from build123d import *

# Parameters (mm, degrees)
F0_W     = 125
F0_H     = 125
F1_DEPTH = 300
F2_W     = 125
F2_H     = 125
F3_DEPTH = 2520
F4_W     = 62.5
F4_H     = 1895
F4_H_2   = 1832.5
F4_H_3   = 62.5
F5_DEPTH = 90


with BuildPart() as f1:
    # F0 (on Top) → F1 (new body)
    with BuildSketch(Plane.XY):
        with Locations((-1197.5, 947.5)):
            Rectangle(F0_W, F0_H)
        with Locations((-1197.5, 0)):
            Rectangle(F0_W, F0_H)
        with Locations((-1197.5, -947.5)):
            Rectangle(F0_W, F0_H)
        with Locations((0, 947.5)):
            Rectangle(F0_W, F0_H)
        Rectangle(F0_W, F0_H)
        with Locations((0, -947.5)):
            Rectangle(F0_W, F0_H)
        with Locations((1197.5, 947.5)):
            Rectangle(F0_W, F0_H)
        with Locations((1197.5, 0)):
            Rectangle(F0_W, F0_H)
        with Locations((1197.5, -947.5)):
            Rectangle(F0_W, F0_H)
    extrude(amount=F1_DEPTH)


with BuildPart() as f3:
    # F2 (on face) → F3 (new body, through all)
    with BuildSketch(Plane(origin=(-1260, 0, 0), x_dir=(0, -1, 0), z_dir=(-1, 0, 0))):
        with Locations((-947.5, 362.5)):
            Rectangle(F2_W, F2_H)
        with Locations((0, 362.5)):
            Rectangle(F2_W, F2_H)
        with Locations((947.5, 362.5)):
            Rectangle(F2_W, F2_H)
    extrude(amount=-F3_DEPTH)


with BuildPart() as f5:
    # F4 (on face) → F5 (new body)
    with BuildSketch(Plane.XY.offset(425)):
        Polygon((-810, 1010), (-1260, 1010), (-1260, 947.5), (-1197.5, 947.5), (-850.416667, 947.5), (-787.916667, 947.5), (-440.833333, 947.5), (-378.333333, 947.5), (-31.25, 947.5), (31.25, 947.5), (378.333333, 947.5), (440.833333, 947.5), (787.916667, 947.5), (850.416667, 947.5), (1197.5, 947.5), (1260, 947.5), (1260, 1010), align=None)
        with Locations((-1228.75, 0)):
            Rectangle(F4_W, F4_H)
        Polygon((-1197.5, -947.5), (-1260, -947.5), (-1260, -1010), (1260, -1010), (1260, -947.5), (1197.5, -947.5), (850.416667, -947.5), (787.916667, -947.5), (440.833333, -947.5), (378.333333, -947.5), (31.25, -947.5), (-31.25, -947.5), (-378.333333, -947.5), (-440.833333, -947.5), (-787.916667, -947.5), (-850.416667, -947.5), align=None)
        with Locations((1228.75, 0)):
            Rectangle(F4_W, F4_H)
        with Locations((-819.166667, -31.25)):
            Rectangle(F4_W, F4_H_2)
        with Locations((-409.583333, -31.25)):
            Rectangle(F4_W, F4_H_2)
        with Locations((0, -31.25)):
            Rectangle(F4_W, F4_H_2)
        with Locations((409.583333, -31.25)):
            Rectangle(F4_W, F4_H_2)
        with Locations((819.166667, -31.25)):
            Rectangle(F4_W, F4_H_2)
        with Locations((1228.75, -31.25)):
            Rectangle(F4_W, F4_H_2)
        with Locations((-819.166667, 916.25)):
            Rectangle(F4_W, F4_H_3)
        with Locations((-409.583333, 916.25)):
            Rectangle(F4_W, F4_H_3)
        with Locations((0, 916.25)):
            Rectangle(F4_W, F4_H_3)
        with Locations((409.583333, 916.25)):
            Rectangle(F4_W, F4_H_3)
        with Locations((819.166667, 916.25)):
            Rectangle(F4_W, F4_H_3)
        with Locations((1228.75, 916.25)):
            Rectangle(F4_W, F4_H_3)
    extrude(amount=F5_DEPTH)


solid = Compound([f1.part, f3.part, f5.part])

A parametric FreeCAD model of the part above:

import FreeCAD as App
import Part
import Sketcher
Q = App.Units.Quantity


def add_polygon(sketch, points):
    """Adds a closed chain of lines whose ends are joined by coincident constraints."""
    first, n = sketch.GeometryCount, len(points)
    for a, b in zip(points, points[1:] + points[:1]):
        sketch.addGeometry(Part.LineSegment(App.Vector(*a, 0), App.Vector(*b, 0)), False)
    for i in range(n):
        sketch.addConstraint(Sketcher.Constraint("Coincident", first + i, 2, first + (i + 1) % n, 1))

doc = App.newDocument("Part")
body = doc.addObject("PartDesign::Body", "Body")
body.AllowCompound = True

# Sketch on XY plane
sketch1 = doc.addObject("Sketcher::SketchObject", "Sketch")
body.addObject(sketch1)
sketch1.AttachmentSupport = (doc.XY_Plane, [""])
sketch1.MapMode = "FlatFace"
add_polygon(sketch1, [(-1260, 1010), (-1260, 885), (-1135, 885), (-1135, 1010)])  # lines 0-3
add_polygon(sketch1, [(-1260, 62.5), (-1260, -62.5), (-1135, -62.5), (-1135, 62.5)])  # lines 4-7
add_polygon(sketch1, [(-1260, -885), (-1260, -1010), (-1135, -1010), (-1135, -885)])  # lines 8-11
add_polygon(sketch1, [(-62.5, 1010), (-62.5, 885), (62.5, 885), (62.5, 1010)])  # lines 12-15
add_polygon(sketch1, [(-62.5, 62.5), (-62.5, -62.5), (62.5, -62.5), (62.5, 62.5)])  # lines 16-19
add_polygon(sketch1, [(-62.5, -885), (-62.5, -1010), (62.5, -1010), (62.5, -885)])  # lines 20-23
add_polygon(sketch1, [(1135, 1010), (1135, 885), (1260, 885), (1260, 1010)])  # lines 24-27
add_polygon(sketch1, [(1135, 62.5), (1135, -62.5), (1260, -62.5), (1260, 62.5)])  # lines 28-31
add_polygon(sketch1, [(1135, -885), (1135, -1010), (1260, -1010), (1260, -885)])  # lines 32-35
sketch1.addConstraint([
    Sketcher.Constraint("Vertical", 0),
    Sketcher.Constraint("Horizontal", 1),
    Sketcher.Constraint("Vertical", 2),
    Sketcher.Constraint("Horizontal", 3),
    Sketcher.Constraint("Vertical", 4),
    Sketcher.Constraint("Horizontal", 5),
    Sketcher.Constraint("Vertical", 6),
    Sketcher.Constraint("Horizontal", 7),
    Sketcher.Constraint("Vertical", 8),
    Sketcher.Constraint("Horizontal", 9),
    Sketcher.Constraint("Vertical", 10),
    Sketcher.Constraint("Horizontal", 11),
    Sketcher.Constraint("Vertical", 12),
    Sketcher.Constraint("Horizontal", 13),
    Sketcher.Constraint("Vertical", 14),
    Sketcher.Constraint("Horizontal", 15),
    Sketcher.Constraint("Vertical", 16),
    Sketcher.Constraint("Horizontal", 17),
    Sketcher.Constraint("Vertical", 18),
    Sketcher.Constraint("Horizontal", 19),
    Sketcher.Constraint("Vertical", 20),
    Sketcher.Constraint("Horizontal", 21),
    Sketcher.Constraint("Vertical", 22),
    Sketcher.Constraint("Horizontal", 23),
    Sketcher.Constraint("Vertical", 24),
    Sketcher.Constraint("Horizontal", 25),
    Sketcher.Constraint("Vertical", 26),
    Sketcher.Constraint("Horizontal", 27),
    Sketcher.Constraint("Vertical", 28),
    Sketcher.Constraint("Horizontal", 29),
    Sketcher.Constraint("Vertical", 30),
    Sketcher.Constraint("Horizontal", 31),
    Sketcher.Constraint("Vertical", 32),
    Sketcher.Constraint("Horizontal", 33),
    Sketcher.Constraint("Vertical", 34),
    Sketcher.Constraint("Horizontal", 35),
    Sketcher.Constraint("Symmetric", 16, 2, 18, 2, -1, 1),
    Sketcher.Constraint("Symmetric", 14, 2, 20, 2, -1, 1),
    Sketcher.Constraint("Symmetric", 12, 2, 22, 2, -1, 1),
    Sketcher.Constraint("Symmetric", 10, 2, 24, 2, -1, 1),
    Sketcher.Constraint("Symmetric", 8, 2, 26, 2, -1, 1),
    Sketcher.Constraint("Symmetric", 6, 2, 28, 2, -1, 1),
    Sketcher.Constraint("Symmetric", 4, 2, 30, 2, -1, 1),
    Sketcher.Constraint("Symmetric", 2, 2, 32, 2, -1, 1),
    Sketcher.Constraint("Symmetric", 0, 2, 34, 2, -1, 1),
    Sketcher.Constraint("Symmetric", 1, 2, 24, 2, -2),
    Sketcher.Constraint("Symmetric", 3, 2, 26, 2, -2),
    Sketcher.Constraint("Horizontal", 1, 2, 12, 2),
    Sketcher.Constraint("Horizontal", 3, 2, 14, 2),
    Sketcher.Constraint("Horizontal", 5, 2, 16, 2),
    Sketcher.Constraint("Horizontal", 7, 2, 18, 2),
    Sketcher.Constraint("Vertical", 3, 2, 4, 2),
    Sketcher.Constraint("Vertical", 2, 2, 5, 2),
    Sketcher.Constraint("Vertical", 15, 2, 16, 2),
    Sketcher.Constraint("Vertical", 14, 2, 17, 2),
    Sketcher.Constraint("Equal", 11, 13),
    Sketcher.Constraint("Equal", 35, 0),
    Sketcher.Constraint("Equal", 2, 4),
    Sketcher.Constraint("DistanceX", 1, 1, 1, 2, Q("125 mm")),
    Sketcher.Constraint("DistanceX", 0, 2, -1, 1, Q("1260 mm")),
    Sketcher.Constraint("DistanceY", -1, 1, 0, 2, Q("885 mm")),
])
pad1 = doc.addObject("PartDesign::Pad", "Pad")
body.addObject(pad1)
pad1.Profile = sketch1
pad1.Length = 300
body2 = doc.addObject("PartDesign::Body", "Body001")
body2.AllowCompound = True

# Sketch on YZ plane
sketch2 = doc.addObject("Sketcher::SketchObject", "Sketch001")
body2.addObject(sketch2)
sketch2.AttachmentSupport = (doc.getObject("YZ_Plane001"), [""])
sketch2.MapMode = "FlatFace"
sketch2.AttachmentOffset = App.Placement(App.Vector(0, 0, -1260), App.Rotation())
add_polygon(sketch2, [(1010, 425), (1010, 300), (885, 300), (885, 425)])  # lines 0-3
add_polygon(sketch2, [(62.5, 425), (62.5, 300), (-62.5, 300), (-62.5, 425)])  # lines 4-7
add_polygon(sketch2, [(-885, 425), (-885, 300), (-1010, 300), (-1010, 425)])  # lines 8-11
sketch2.addConstraint([
    Sketcher.Constraint("Vertical", 0),
    Sketcher.Constraint("Horizontal", 1),
    Sketcher.Constraint("Vertical", 2),
    Sketcher.Constraint("Horizontal", 3),
    Sketcher.Constraint("Vertical", 4),
    Sketcher.Constraint("Horizontal", 5),
    Sketcher.Constraint("Vertical", 6),
    Sketcher.Constraint("Horizontal", 7),
    Sketcher.Constraint("Vertical", 8),
    Sketcher.Constraint("Horizontal", 9),
    Sketcher.Constraint("Vertical", 10),
    Sketcher.Constraint("Horizontal", 11),
    Sketcher.Constraint("Symmetric", 1, 2, 8, 2, -2),
    Sketcher.Constraint("Symmetric", 3, 2, 10, 2, -2),
    Sketcher.Constraint("Horizontal", 1, 2, 4, 2),
    Sketcher.Constraint("Horizontal", 3, 2, 6, 2),
    Sketcher.Constraint("Equal", 3, 5),
    Sketcher.Constraint("Equal", 11, 0),
    Sketcher.Constraint("DistanceX", 1, 2, 1, 1, Q("125 mm")),
    Sketcher.Constraint("DistanceX", -1, 1, 0, 2, Q("1010 mm")),
    Sketcher.Constraint("DistanceY", -1, 1, 0, 2, Q("300 mm")),
    Sketcher.Constraint("DistanceX", -1, 1, 4, 2, Q("62.5 mm")),
])
pad2 = doc.addObject("PartDesign::Pad", "Pad001")
body2.addObject(pad2)
pad2.Profile = sketch2
pad2.Length = 2520
body3 = doc.addObject("PartDesign::Body", "Body002")

# Sketch on XY plane
sketch3 = doc.addObject("Sketcher::SketchObject", "Sketch002")
body3.addObject(sketch3)
sketch3.AttachmentSupport = (doc.getObject("XY_Plane002"), [""])
sketch3.MapMode = "FlatFace"
sketch3.AttachmentOffset = App.Placement(App.Vector(0, 0, 425), App.Rotation())
add_polygon(sketch3, [(1260, 1010), (-1260, 1010), (-1260, -1010), (1260, -1010)])  # lines 0-3
add_polygon(sketch3, [(850.416667, 947.5), (1197.5, 947.5), (1197.5, -947.5), (850.416667, -947.5)])  # lines 4-7
add_polygon(sketch3, [(-850.416667, -947.5), (-1197.5, -947.5), (-1197.5, 947.5), (-850.416667, 947.5)])  # lines 8-11
add_polygon(sketch3, [(-440.833333, -947.5), (-787.916667, -947.5), (-787.916667, 947.5), (-440.833333, 947.5)])  # lines 12-15
add_polygon(sketch3, [(-31.25, -947.5), (-378.333333, -947.5), (-378.333333, 947.5), (-31.25, 947.5)])  # lines 16-19
add_polygon(sketch3, [(378.333333, -947.5), (31.25, -947.5), (31.25, 947.5), (378.333333, 947.5)])  # lines 20-23
add_polygon(sketch3, [(787.916667, -947.5), (440.833333, -947.5), (440.833333, 947.5), (787.916667, 947.5)])  # lines 24-27
sketch3.addConstraint([
    Sketcher.Constraint("Horizontal", 0),
    Sketcher.Constraint("Vertical", 1),
    Sketcher.Constraint("Horizontal", 2),
    Sketcher.Constraint("Vertical", 3),
    Sketcher.Constraint("Horizontal", 4),
    Sketcher.Constraint("Vertical", 5),
    Sketcher.Constraint("Horizontal", 6),
    Sketcher.Constraint("Vertical", 7),
    Sketcher.Constraint("Horizontal", 8),
    Sketcher.Constraint("Vertical", 9),
    Sketcher.Constraint("Horizontal", 10),
    Sketcher.Constraint("Vertical", 11),
    Sketcher.Constraint("Horizontal", 12),
    Sketcher.Constraint("Vertical", 13),
    Sketcher.Constraint("Horizontal", 14),
    Sketcher.Constraint("Vertical", 15),
    Sketcher.Constraint("Horizontal", 16),
    Sketcher.Constraint("Vertical", 17),
    Sketcher.Constraint("Horizontal", 18),
    Sketcher.Constraint("Vertical", 19),
    Sketcher.Constraint("Horizontal", 20),
    Sketcher.Constraint("Vertical", 21),
    Sketcher.Constraint("Horizontal", 22),
    Sketcher.Constraint("Vertical", 23),
    Sketcher.Constraint("Horizontal", 24),
    Sketcher.Constraint("Vertical", 25),
    Sketcher.Constraint("Horizontal", 26),
    Sketcher.Constraint("Vertical", 27),
    Sketcher.Constraint("Symmetric", 0, 2, 2, 2, -1, 1),
    Sketcher.Constraint("Symmetric", 4, 2, 8, 2, -1, 1),
    Sketcher.Constraint("Symmetric", 6, 2, 10, 2, -1, 1),
    Sketcher.Constraint("Symmetric", 18, 2, 20, 2, -1, 1),
    Sketcher.Constraint("Symmetric", 16, 2, 22, 2, -1, 1),
    Sketcher.Constraint("Symmetric", 14, 2, 24, 2, -1, 1),
    Sketcher.Constraint("Symmetric", 12, 2, 26, 2, -1, 1),
    Sketcher.Constraint("Horizontal", 6, 2, 8, 2),
    Sketcher.Constraint("Horizontal", 11, 2, 12, 2),
    Sketcher.Constraint("Horizontal", 10, 2, 13, 2),
    Sketcher.Constraint("Horizontal", 15, 2, 16, 2),
    Sketcher.Constraint("Horizontal", 14, 2, 17, 2),
    Sketcher.Constraint("Equal", 10, 12),
    Sketcher.Constraint("Equal", 14, 16),
    Sketcher.Constraint("DistanceX", 0, 2, 0, 1, Q("2520 mm")),
    Sketcher.Constraint("DistanceY", 1, 2, 1, 1, Q("2020 mm")),
    Sketcher.Constraint("DistanceY", 5, 2, 5, 1, Q("1895 mm")),
    Sketcher.Constraint("DistanceX", 8, 2, 5, 2, Q("2395 mm")),
    Sketcher.Constraint("DistanceX", 11, 2, 12, 2, Q("62.5 mm")),
    Sketcher.Constraint("DistanceX", 15, 2, 16, 2, Q("62.5 mm")),
    Sketcher.Constraint("DistanceX", 19, 2, 20, 2, Q("62.5 mm")),
])
pad3 = doc.addObject("PartDesign::Pad", "Pad002")
body3.addObject(pad3)
pad3.Profile = sketch3
pad3.Length = 90

doc.recompute()
